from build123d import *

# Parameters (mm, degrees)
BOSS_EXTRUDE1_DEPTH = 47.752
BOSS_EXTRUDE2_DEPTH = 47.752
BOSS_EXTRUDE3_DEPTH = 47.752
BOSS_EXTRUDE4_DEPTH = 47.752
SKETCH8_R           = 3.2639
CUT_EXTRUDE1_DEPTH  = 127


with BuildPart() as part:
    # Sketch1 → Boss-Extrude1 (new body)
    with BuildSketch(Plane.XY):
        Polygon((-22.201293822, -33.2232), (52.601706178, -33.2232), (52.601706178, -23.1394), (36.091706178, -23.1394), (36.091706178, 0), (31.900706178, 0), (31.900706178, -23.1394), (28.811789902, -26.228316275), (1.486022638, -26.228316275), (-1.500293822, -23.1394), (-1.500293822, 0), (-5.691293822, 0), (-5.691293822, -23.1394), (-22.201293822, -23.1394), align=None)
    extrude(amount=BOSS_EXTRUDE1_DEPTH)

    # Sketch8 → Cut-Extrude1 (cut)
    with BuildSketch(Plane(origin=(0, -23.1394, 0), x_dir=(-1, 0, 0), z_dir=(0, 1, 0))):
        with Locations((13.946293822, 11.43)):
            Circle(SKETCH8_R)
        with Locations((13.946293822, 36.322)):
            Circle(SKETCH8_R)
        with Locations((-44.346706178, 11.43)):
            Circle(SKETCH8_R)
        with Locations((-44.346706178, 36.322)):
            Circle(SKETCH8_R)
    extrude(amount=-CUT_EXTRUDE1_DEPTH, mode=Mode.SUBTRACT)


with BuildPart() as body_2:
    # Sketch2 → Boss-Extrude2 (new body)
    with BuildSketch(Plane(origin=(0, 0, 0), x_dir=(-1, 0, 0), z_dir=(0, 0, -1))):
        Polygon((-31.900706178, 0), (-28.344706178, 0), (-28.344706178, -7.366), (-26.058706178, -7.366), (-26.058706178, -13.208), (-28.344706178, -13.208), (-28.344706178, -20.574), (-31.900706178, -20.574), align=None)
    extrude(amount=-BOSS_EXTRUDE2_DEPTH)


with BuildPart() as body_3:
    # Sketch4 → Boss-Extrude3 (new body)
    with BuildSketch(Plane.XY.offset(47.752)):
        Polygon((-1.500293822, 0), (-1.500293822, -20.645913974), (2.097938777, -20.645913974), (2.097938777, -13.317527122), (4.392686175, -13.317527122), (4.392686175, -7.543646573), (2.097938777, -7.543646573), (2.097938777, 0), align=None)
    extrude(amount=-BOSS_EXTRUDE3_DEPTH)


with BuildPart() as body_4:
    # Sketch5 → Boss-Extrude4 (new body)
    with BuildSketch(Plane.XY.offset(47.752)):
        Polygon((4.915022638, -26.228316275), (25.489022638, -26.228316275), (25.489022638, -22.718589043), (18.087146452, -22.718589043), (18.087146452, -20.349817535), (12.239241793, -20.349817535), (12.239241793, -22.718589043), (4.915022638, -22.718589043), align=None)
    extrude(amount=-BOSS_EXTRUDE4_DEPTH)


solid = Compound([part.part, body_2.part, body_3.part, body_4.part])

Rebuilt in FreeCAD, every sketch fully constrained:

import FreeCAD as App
import Part
import Sketcher

V = App.Vector
Q = App.Units.Quantity

doc = App.newDocument("Part")
body = doc.addObject("PartDesign::Body", "Body")

# Sketch on XY plane
sketch1 = body.newObject("Sketcher::SketchObject", "Sketch")
sketch1.AttachmentSupport = (doc.getObject("XY_Plane"), [""])
sketch1.MapMode = "FlatFace"
sketch1.addGeometry([
    Part.LineSegment(V(-22.2, -33.2, 0), V(52.6, -33.2, 0)),  # 0
    Part.LineSegment(V(52.6, -33.2, 0), V(52.6, -23.1, 0)),  # 1
    Part.LineSegment(V(52.6, -23.1, 0), V(36.1, -23.1, 0)),  # 2
    Part.LineSegment(V(36.1, -23.1, 0), V(36.1, 0, 0)),  # 3
    Part.LineSegment(V(36.1, 0, 0), V(31.9, 0, 0)),  # 4
    Part.LineSegment(V(31.9, 0, 0), V(31.9, -23.1, 0)),  # 5
    Part.LineSegment(V(31.9, -23.1, 0), V(28.8, -26.2, 0)),  # 6
    Part.LineSegment(V(28.8, -26.2, 0), V(1.5, -26.2, 0)),  # 7
    Part.LineSegment(V(1.5, -26.2, 0), V(-1.5, -23.1, 0)),  # 8
    Part.LineSegment(V(-1.5, -23.1, 0), V(-1.5, 0, 0)),  # 9
    Part.LineSegment(V(-1.5, 0, 0), V(-5.7, 0, 0)),  # 10
    Part.LineSegment(V(-5.7, 0, 0), V(-5.7, -23.1, 0)),  # 11
    Part.LineSegment(V(-5.7, -23.1, 0), V(-22.2, -23.1, 0)),  # 12
    Part.LineSegment(V(-22.2, -23.1, 0), V(-22.2, -33.2, 0)),  # 13
], False)
sketch1.addConstraint([
    Sketcher.Constraint("Coincident", 0, 2, 1, 1),
    Sketcher.Constraint("Coincident", 1, 2, 2, 1),
    Sketcher.Constraint("Coincident", 2, 2, 3, 1),
    Sketcher.Constraint("Coincident", 3, 2, 4, 1),
    Sketcher.Constraint("Coincident", 4, 2, 5, 1),
    Sketcher.Constraint("Coincident", 5, 2, 6, 1),
    Sketcher.Constraint("Coincident", 6, 2, 7, 1),
    Sketcher.Constraint("Coincident", 7, 2, 8, 1),
    Sketcher.Constraint("Coincident", 8, 2, 9, 1),
    Sketcher.Constraint("Coincident", 9, 2, 10, 1),
    Sketcher.Constraint("Coincident", 10, 2, 11, 1),
    Sketcher.Constraint("Coincident", 11, 2, 12, 1),
    Sketcher.Constraint("Coincident", 12, 2, 13, 1),
    Sketcher.Constraint("Coincident", 13, 2, 0, 1),
    Sketcher.Constraint("Horizontal", 0),
    Sketcher.Constraint("Vertical", 1),
    Sketcher.Constraint("Horizontal", 2),
    Sketcher.Constraint("Vertical", 3),
    Sketcher.Constraint("Horizontal", 4),
    Sketcher.Constraint("Vertical", 5),
    Sketcher.Constraint("Horizontal", 7),
    Sketcher.Constraint("Vertical", 9),
    Sketcher.Constraint("Horizontal", 10),
    Sketcher.Constraint("Vertical", 11),
    Sketcher.Constraint("Horizontal", 12),
    Sketcher.Constraint("Vertical", 13),
    Sketcher.Constraint("PointOnObject", 3, 2, -1),
    Sketcher.Constraint("PointOnObject", 9, 2, -1),
    Sketcher.Constraint("Horizontal", 2, 2, 5, 2),
    Sketcher.Constraint("Horizontal", 5, 2, 8, 2),
    Sketcher.Constraint("Horizontal", 8, 2, 11, 2),
    Sketcher.Constraint("Equal", 4, 10),
    Sketcher.Constraint("Equal", 2, 12),
    Sketcher.Constraint("Angle", 6, Q("-135 deg")),
    Sketcher.Constraint("DistanceX", 2, 2, 2, 1, Q("0.65 in")),
    Sketcher.Constraint("DistanceX", 0, 1, 0, 2, Q("2.945 in")),
    Sketcher.Constraint("DistanceX", 4, 2, 4, 1, Q("0.165 in")),
    Sketcher.Constraint("DistanceY", 1, 1, 1, 2, Q("0.397 in")),
    Sketcher.Constraint("DistanceY", 3, 1, 3, 2, Q("0.911 in")),
    Sketcher.Constraint("Distance", 8, Q("4.296451 mm")),
    Sketcher.Constraint("DistanceX", 7, 2, 7, 1, Q("27.325767 mm")),
    Sketcher.Constraint("DistanceX", -1, 1, 6, 2, Q("28.81179 mm")),
])
pad1 = body.newObject("PartDesign::Pad", "Pad")
pad1.Profile = sketch1
pad1.Length = Q("1.88 in")

# Sketch on XZ plane
sketch2 = body.newObject("Sketcher::SketchObject", "Sketch001")
sketch2.AttachmentSupport = (doc.getObject("XZ_Plane"), [""])
sketch2.MapMode = "FlatFace"
sketch2.AttachmentOffset = App.Placement(V(0, 0, 0.911 * 25.4), App.Rotation())
sketch2.addGeometry([
    Part.Circle(V(-13.9, 11.4, 0), V(0, 0, 1), 3.3),
    Part.Circle(V(-13.9, 36.3, 0), V(0, 0, 1), 3.3),
    Part.Circle(V(44.3, 11.4, 0), V(0, 0, 1), 3.3),
    Part.Circle(V(44.3, 36.3, 0), V(0, 0, 1), 3.3),
], False)
sketch2.addConstraint([
    Sketcher.Constraint("Equal", 0, 1),
    Sketcher.Constraint("Equal", 1, 2),
    Sketcher.Constraint("Equal", 2, 3),
    Sketcher.Constraint("Horizontal", 0, 3, 2, 3),
    Sketcher.Constraint("Horizontal", 1, 3, 3, 3),
    Sketcher.Constraint("Vertical", 0, 3, 1, 3),
    Sketcher.Constraint("Vertical", 2, 3, 3, 3),
    Sketcher.Constraint("Diameter", 0, Q("0.257 in")),
    Sketcher.Constraint("DistanceY", -1, 1, 0, 3, Q("0.45 in")),
    Sketcher.Constraint("DistanceY", -1, 1, 1, 3, Q("1.43 in")),
    Sketcher.Constraint("DistanceX", 0, 3, 2, 3, Q("2.295 in")),
    Sketcher.Constraint("DistanceX", 0, 3, -1, 1, Q("13.946294 mm")),
])
pocket1 = body.newObject("PartDesign::Pocket", "Pocket")
pocket1.Profile = sketch2
pocket1.Length = Q("5 in")
pocket1.Reversed = True
body2 = doc.addObject("PartDesign::Body", "Body001")

# Sketch on XY plane
sketch3 = body2.newObject("Sketcher::SketchObject", "Sketch002")
sketch3.AttachmentSupport = (doc.getObject("XY_Plane001"), [""])
sketch3.MapMode = "FlatFace"
sketch3.addGeometry([
    Part.LineSegment(V(28.3, 0, 0), V(31.9, 0, 0)),  # 0
    Part.LineSegment(V(31.9, 0, 0), V(31.9, -20.6, 0)),  # 1
    Part.LineSegment(V(31.9, -20.6, 0), V(28.3, -20.6, 0)),  # 2
    Part.LineSegment(V(28.3, -20.6, 0), V(28.3, -13.2, 0)),  # 3
    Part.LineSegment(V(28.3, -13.2, 0), V(26.1, -13.2, 0)),  # 4
    Part.LineSegment(V(26.1, -13.2, 0), V(26.1, -7.4, 0)),  # 5
    Part.LineSegment(V(26.1, -7.4, 0), V(28.3, -7.4, 0)),  # 6
    Part.LineSegment(V(28.3, -7.4, 0), V(28.3, 0, 0)),  # 7
], False)
sketch3.addConstraint([
    Sketcher.Constraint("Coincident", 0, 2, 1, 1),
    Sketcher.Constraint("Coincident", 1, 2, 2, 1),
    Sketcher.Constraint("Coincident", 2, 2, 3, 1),
    Sketcher.Constraint("Coincident", 3, 2, 4, 1),
    Sketcher.Constraint("Coincident", 4, 2, 5, 1),
    Sketcher.Constraint("Coincident", 5, 2, 6, 1),
    Sketcher.Constraint("Coincident", 6, 2, 7, 1),
    Sketcher.Constraint("Coincident", 7, 2, 0, 1),
    Sketcher.Constraint("Horizontal", 0),
    Sketcher.Constraint("Vertical", 1),
    Sketcher.Constraint("Horizontal", 2),
    Sketcher.Constraint("Vertical", 3),
    Sketcher.Constraint("Horizontal", 4),
    Sketcher.Constraint("Vertical", 5),
    Sketcher.Constraint("Horizontal", 6),
    Sketcher.Constraint("Vertical", 7),
    Sketcher.Constraint("PointOnObject", 0, 2, -1),
    Sketcher.Constraint("Vertical", 3, 2, 6, 2),
    Sketcher.Constraint("Equal", 3, 7),
    Sketcher.Constraint("DistanceX", 0, 1, 0, 2, Q("0.14 in")),
    Sketcher.Constraint("DistanceX", 4, 2, 4, 1, Q("0.09 in")),
    Sketcher.Constraint("DistanceY", 1, 2, 1, 1, Q("0.81 in")),
    Sketcher.Constraint("DistanceY", 3, 1, 3, 2, Q("0.29 in")),
    Sketcher.Constraint("DistanceX", -1, 1, 0, 2, Q("31.900706 mm")),
])
pad2 = body2.newObject("PartDesign::Pad", "Pad001")
pad2.Profile = sketch3
pad2.Length = Q("1.88 in")
body3 = doc.addObject("PartDesign::Body", "Body002")

# Sketch on XY plane
sketch4 = body3.newObject("Sketcher::SketchObject", "Sketch003")
sketch4.AttachmentSupport = (doc.getObject("XY_Plane002"), [""])
sketch4.MapMode = "FlatFace"
sketch4.AttachmentOffset = App.Placement(V(0, 0, 1.88 * 25.4), App.Rotation())
sketch4.addGeometry([
    Part.LineSegment(V(-1.5, 0, 0), V(-1.5, -20.6, 0)),  # 0
    Part.LineSegment(V(-1.5, -20.6, 0), V(2.1, -20.6, 0)),  # 1
    Part.LineSegment(V(2.1, -20.6, 0), V(2.1, -13.3, 0)),  # 2
    Part.LineSegment(V(2.1, -13.3, 0), V(4.4, -13.3, 0)),  # 3
    Part.LineSegment(V(4.4, -13.3, 0), V(4.4, -7.5, 0)),  # 4
    Part.LineSegment(V(4.4, -7.5, 0), V(2.1, -7.5, 0)),  # 5
    Part.LineSegment(V(2.1, -7.5, 0), V(2.1, 0, 0)),  # 6
    Part.LineSegment(V(2.1, 0, 0), V(-1.5, 0, 0)),  # 7
], False)
sketch4.addConstraint([
    Sketcher.Constraint("Coincident", 0, 2, 1, 1),
    Sketcher.Constraint("Coincident", 1, 2, 2, 1),
    Sketcher.Constraint("Coincident", 2, 2, 3, 1),
    Sketcher.Constraint("Coincident", 3, 2, 4, 1),
    Sketcher.Constraint("Coincident", 4, 2, 5, 1),
    Sketcher.Constraint("Coincident", 5, 2, 6, 1),
    Sketcher.Constraint("Coincident", 6, 2, 7, 1),
    Sketcher.Constraint("Coincident", 7, 2, 0, 1),
    Sketcher.Constraint("Vertical", 0),
    Sketcher.Constraint("Horizontal", 1),
    Sketcher.Constraint("Vertical", 2),
    Sketcher.Constraint("Horizontal", 3),
    Sketcher.Constraint("Vertical", 4),
    Sketcher.Constraint("Horizontal", 5),
    Sketcher.Constraint("Vertical", 6),
    Sketcher.Constraint("Horizontal", 7),
    Sketcher.Constraint("PointOnObject", 6, 2, -1),
    Sketcher.Constraint("Vertical", 2, 2, 5, 2),
    Sketcher.Constraint("DistanceY", 4, 1, 4, 2, Q("5.773881 mm")),
    Sketcher.Constraint("DistanceX", 1, 1, 1, 2, Q("3.598233 mm")),
    Sketcher.Constraint("DistanceX", 3, 1, 3, 2, Q("2.294747 mm")),
    Sketcher.Constraint("DistanceY", 0, 2, 0, 1, Q("20.645914 mm")),
    Sketcher.Constraint("DistanceY", 2, 1, 2, 2, Q("7.328387 mm")),
    Sketcher.Constraint("DistanceX", -1, 1, 1, 2, Q("2.097939 mm")),
])
pad3 = body3.newObject("PartDesign::Pad", "Pad002")
pad3.Profile = sketch4
pad3.Length = Q("1.88 in")
pad3.Reversed = True
body4 = doc.addObject("PartDesign::Body", "Body003")

# Sketch on XY plane
sketch5 = body4.newObject("Sketcher::SketchObject", "Sketch004")
sketch5.AttachmentSupport = (doc.getObject("XY_Plane003"), [""])
sketch5.MapMode = "FlatFace"
sketch5.AttachmentOffset = App.Placement(V(0, 0, 1.88 * 25.4), App.Rotation())
sketch5.addGeometry([
    Part.LineSegment(V(4.9, -26.2, 0), V(25.5, -26.2, 0)),  # 0
    Part.LineSegment(V(25.5, -26.2, 0), V(25.5, -22.7, 0)),  # 1
    Part.LineSegment(V(25.5, -22.7, 0), V(18.1, -22.7, 0)),  # 2
    Part.LineSegment(V(18.1, -22.7, 0), V(18.1, -20.3, 0)),  # 3
    Part.LineSegment(V(18.1, -20.3, 0), V(12.2, -20.3, 0)),  # 4
    Part.LineSegment(V(12.2, -20.3, 0), V(12.2, -22.7, 0)),  # 5
    Part.LineSegment(V(12.2, -22.7, 0), V(4.9, -22.7, 0)),  # 6
    Part.LineSegment(V(4.9, -22.7, 0), V(4.9, -26.2, 0)),  # 7
], False)
sketch5.addConstraint([
    Sketcher.Constraint("Coincident", 0, 2, 1, 1),
    Sketcher.Constraint("Coincident", 1, 2, 2, 1),
    Sketcher.Constraint("Coincident", 2, 2, 3, 1),
    Sketcher.Constraint("Coincident", 3, 2, 4, 1),
    Sketcher.Constraint("Coincident", 4, 2, 5, 1),
    Sketcher.Constraint("Coincident", 5, 2, 6, 1),
    Sketcher.Constraint("Coincident", 6, 2, 7, 1),
    Sketcher.Constraint("Coincident", 7, 2, 0, 1),
    Sketcher.Constraint("Horizontal", 0),
    Sketcher.Constraint("Vertical", 1),
    Sketcher.Constraint("Horizontal", 2),
    Sketcher.Constraint("Vertical", 3),
    Sketcher.Constraint("Horizontal", 4),
    Sketcher.Constraint("Vertical", 5),
    Sketcher.Constraint("Horizontal", 6),
    Sketcher.Constraint("Vertical", 7),
    Sketcher.Constraint("Horizontal", 2, 2, 5, 2),
    Sketcher.Constraint("DistanceX", 0, 1, 0, 2, Q("0.81 in")),
    Sketcher.Constraint("DistanceX", 6, 2, 6, 1, Q("7.324219 mm")),
    Sketcher.Constraint("DistanceY", 3, 1, 3, 2, Q("2.368772 mm")),
    Sketcher.Constraint("DistanceY", 0, 2, 3, 2, Q("5.878499 mm")),
    Sketcher.Constraint("DistanceX", 2, 2, 2, 1, Q("7.401876 mm")),
    Sketcher.Constraint("DistanceY", 1, 2, -1, 1, Q("22.718589 mm")),
    Sketcher.Constraint("DistanceX", -1, 1, 4, 2, Q("12.239242 mm")),
])
pad4 = body4.newObject("PartDesign::Pad", "Pad003")
pad4.Profile = sketch5
pad4.Length = Q("1.88 in")
pad4.Reversed = True

doc.recompute()
